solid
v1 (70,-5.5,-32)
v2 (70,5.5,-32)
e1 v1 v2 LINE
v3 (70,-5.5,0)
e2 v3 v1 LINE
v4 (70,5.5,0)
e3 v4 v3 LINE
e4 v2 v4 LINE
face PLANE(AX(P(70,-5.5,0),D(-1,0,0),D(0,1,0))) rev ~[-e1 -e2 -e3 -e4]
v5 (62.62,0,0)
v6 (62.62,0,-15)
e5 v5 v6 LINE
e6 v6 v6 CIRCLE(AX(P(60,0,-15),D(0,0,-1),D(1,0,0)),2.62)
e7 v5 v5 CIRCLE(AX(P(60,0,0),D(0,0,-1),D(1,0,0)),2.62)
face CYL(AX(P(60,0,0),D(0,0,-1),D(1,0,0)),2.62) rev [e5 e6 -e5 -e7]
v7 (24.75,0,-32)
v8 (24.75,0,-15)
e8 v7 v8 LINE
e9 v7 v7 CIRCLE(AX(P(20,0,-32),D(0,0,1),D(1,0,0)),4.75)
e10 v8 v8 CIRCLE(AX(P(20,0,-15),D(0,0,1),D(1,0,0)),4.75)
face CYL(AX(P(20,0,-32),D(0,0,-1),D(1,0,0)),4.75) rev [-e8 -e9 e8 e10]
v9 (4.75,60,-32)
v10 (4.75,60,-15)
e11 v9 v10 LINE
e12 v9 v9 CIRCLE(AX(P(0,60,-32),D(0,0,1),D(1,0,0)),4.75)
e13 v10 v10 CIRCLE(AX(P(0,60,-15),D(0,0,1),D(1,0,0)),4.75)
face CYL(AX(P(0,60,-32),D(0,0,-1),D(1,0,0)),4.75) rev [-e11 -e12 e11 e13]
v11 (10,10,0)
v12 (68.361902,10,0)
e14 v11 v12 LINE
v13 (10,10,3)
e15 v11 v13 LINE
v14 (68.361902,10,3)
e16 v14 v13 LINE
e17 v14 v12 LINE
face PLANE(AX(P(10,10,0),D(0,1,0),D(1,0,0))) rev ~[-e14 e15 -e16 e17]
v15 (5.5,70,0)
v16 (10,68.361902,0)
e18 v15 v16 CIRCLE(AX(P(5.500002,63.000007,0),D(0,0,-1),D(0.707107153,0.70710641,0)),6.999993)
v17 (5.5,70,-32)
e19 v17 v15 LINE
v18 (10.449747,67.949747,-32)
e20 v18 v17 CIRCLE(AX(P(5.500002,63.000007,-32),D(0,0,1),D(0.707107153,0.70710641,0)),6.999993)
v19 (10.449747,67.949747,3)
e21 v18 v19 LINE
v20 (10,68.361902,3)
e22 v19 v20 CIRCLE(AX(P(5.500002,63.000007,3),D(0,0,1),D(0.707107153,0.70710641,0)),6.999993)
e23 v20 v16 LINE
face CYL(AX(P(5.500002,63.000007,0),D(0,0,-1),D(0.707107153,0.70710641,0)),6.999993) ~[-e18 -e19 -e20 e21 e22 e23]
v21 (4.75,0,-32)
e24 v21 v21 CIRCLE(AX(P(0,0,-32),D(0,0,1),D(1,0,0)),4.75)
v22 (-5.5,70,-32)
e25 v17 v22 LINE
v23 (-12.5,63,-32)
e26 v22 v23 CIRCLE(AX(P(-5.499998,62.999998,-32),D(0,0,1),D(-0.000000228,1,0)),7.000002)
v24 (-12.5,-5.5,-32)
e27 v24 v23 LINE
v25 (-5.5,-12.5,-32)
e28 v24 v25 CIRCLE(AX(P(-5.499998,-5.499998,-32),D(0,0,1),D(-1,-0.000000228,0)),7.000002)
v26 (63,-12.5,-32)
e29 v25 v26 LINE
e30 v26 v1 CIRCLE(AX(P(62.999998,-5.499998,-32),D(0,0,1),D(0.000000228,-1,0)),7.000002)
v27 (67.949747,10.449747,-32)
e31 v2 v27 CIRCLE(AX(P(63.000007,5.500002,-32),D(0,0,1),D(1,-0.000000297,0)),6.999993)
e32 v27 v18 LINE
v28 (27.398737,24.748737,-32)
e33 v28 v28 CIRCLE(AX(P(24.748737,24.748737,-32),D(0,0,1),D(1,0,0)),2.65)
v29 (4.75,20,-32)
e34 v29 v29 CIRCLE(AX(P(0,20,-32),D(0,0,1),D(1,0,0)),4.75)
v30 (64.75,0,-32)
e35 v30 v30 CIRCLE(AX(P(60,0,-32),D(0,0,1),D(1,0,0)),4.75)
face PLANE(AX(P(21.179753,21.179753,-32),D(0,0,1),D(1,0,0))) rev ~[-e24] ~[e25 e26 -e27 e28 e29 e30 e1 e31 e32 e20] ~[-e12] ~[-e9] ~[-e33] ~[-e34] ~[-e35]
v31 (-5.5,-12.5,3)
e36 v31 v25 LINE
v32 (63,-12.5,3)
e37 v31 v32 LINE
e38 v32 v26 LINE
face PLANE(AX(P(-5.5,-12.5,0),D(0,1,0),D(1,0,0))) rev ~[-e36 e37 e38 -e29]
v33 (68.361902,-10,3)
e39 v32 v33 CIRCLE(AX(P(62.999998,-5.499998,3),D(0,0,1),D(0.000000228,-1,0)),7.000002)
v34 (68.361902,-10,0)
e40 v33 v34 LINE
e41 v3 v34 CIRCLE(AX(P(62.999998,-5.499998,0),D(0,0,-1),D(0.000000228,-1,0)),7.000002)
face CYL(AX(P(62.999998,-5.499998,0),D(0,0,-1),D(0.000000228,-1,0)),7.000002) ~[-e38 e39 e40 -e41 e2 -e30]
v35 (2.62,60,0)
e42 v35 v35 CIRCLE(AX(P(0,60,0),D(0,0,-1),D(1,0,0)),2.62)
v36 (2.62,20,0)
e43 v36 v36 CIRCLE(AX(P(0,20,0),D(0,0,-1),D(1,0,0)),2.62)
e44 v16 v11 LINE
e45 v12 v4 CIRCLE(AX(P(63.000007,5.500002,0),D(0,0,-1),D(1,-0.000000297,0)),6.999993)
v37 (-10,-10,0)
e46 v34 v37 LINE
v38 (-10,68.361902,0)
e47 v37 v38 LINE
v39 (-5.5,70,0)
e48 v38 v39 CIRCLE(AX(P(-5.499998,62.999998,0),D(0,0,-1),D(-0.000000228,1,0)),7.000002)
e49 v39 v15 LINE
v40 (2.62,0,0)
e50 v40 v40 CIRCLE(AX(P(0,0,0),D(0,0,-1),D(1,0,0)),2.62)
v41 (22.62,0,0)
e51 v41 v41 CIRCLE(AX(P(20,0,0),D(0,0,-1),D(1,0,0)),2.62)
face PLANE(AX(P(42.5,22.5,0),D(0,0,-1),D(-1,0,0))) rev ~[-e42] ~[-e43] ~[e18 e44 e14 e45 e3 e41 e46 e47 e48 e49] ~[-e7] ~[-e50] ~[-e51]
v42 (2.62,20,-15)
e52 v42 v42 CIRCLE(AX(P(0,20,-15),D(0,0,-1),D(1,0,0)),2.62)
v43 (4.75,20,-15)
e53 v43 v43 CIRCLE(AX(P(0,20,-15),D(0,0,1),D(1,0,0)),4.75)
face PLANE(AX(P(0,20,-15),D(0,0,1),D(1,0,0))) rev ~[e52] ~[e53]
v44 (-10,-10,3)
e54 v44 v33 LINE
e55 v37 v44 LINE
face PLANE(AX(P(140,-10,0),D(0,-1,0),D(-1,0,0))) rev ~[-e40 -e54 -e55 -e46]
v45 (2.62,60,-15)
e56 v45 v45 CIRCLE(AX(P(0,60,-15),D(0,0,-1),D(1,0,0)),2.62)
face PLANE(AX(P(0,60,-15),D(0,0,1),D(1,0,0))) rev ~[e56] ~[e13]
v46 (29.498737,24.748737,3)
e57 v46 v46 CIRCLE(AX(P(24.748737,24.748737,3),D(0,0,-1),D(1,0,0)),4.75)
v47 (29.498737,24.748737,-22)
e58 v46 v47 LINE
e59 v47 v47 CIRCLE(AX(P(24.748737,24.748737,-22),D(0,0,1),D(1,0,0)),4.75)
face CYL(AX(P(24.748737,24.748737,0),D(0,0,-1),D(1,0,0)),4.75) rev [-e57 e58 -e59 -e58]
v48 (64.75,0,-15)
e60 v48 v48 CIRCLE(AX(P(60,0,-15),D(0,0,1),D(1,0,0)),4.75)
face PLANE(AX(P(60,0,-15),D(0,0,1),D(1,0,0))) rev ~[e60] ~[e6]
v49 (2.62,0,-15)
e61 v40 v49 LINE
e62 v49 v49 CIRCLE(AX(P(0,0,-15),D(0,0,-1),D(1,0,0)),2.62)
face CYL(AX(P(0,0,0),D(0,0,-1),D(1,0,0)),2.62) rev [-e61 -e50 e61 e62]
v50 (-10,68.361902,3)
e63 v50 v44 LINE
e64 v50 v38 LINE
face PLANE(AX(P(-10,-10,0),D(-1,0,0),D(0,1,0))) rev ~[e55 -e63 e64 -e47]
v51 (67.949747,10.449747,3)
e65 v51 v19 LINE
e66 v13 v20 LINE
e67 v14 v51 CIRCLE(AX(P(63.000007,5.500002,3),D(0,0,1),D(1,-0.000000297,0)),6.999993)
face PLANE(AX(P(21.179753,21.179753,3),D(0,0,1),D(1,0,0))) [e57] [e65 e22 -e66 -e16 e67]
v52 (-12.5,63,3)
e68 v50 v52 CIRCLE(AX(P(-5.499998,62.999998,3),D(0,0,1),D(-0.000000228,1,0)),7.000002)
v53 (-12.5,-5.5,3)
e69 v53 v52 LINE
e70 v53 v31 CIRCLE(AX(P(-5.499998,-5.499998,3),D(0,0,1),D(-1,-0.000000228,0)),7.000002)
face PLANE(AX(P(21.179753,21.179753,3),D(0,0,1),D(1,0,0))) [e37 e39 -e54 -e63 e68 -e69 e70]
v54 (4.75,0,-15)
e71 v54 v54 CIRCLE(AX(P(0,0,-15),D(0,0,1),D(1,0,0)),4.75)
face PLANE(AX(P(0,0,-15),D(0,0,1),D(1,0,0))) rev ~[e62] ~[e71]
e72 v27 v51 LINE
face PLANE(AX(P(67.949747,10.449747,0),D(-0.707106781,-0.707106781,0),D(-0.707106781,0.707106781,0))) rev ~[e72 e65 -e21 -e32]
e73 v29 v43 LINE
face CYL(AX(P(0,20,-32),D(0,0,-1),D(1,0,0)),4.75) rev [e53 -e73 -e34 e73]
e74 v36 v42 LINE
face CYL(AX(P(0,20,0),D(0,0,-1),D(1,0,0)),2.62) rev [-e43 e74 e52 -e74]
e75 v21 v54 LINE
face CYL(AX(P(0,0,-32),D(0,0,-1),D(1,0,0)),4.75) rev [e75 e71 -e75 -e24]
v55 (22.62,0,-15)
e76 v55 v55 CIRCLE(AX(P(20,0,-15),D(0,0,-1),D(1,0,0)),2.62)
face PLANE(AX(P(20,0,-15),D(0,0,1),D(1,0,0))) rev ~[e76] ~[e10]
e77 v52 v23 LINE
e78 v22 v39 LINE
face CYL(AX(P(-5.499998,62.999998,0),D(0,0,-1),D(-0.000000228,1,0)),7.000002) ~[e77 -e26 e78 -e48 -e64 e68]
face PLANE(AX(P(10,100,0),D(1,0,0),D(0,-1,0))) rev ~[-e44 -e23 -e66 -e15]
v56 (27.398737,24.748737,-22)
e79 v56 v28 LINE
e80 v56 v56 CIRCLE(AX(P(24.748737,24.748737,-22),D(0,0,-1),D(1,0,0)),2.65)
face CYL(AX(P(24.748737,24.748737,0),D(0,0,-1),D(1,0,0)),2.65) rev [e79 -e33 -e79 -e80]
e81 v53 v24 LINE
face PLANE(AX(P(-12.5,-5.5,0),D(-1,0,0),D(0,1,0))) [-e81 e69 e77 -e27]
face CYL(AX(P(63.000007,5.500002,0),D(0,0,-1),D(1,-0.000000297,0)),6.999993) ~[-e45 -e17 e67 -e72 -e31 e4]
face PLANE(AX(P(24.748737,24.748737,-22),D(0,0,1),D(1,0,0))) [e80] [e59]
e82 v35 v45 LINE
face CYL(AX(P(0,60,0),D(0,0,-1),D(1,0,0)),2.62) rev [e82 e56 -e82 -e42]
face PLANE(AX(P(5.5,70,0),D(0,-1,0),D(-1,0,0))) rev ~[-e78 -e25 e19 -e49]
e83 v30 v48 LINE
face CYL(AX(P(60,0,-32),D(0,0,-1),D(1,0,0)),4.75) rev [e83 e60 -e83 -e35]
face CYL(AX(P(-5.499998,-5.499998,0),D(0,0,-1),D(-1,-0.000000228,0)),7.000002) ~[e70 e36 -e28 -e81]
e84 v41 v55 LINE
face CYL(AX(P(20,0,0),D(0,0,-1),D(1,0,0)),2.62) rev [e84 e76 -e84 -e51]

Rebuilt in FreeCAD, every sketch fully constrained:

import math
import FreeCAD as App
import Part
import Sketcher

V = App.Vector

doc = App.newDocument("Part")
body = doc.addObject("PartDesign::Body", "Body")

sketch1 = doc.addObject("Sketcher::SketchObject", "Sketch")
body.addObject(sketch1)
sketch1.AttachmentSupport = (doc.XY_Plane, [""])
sketch1.MapMode = "FlatFace"
sketch1.addGeometry(Part.LineSegment(V(70, -5.5, 0), V(70, 5.5, 0)), False)
sketch1.addGeometry(Part.ArcOfCircle(Part.Circle(V(63, 5.5, 0), V(0, 0, 1), 7), math.radians(0), math.radians(45)), False)
sketch1.addGeometry(Part.LineSegment(V(67.9, 10.4, 0), V(10.4, 67.9, 0)), False)
sketch1.addGeometry(Part.ArcOfCircle(Part.Circle(V(5.5, 63, 0), V(0, 0, 1), 7), math.radians(45), math.radians(90)), False)
sketch1.addGeometry(Part.LineSegment(V(5.5, 70, 0), V(-5.5, 70, 0)), False)
sketch1.addGeometry(Part.ArcOfCircle(Part.Circle(V(-5.5, 63, 0), V(0, 0, 1), 7), math.radians(90), math.radians(180)), False)
sketch1.addGeometry(Part.LineSegment(V(-12.5, 63, 0), V(-12.5, -5.5, 0)), False)
sketch1.addGeometry(Part.ArcOfCircle(Part.Circle(V(-5.5, -5.5, 0), V(0, 0, 1), 7), math.radians(-180), math.radians(-90)), False)
sketch1.addGeometry(Part.LineSegment(V(-5.5, -12.5, 0), V(63, -12.5, 0)), False)
sketch1.addGeometry(Part.ArcOfCircle(Part.Circle(V(63, -5.5, 0), V(0, 0, 1), 7), math.radians(-90), math.radians(0)), False)
sketch1.addGeometry(Part.Circle(V(0, 0, 0), V(0, 0, 1), 2.6), False)
sketch1.addGeometry(Part.Circle(V(20, 0, 0), V(0, 0, 1), 2.6), False)
sketch1.addGeometry(Part.Circle(V(0, 20, 0), V(0, 0, 1), 2.6), False)
sketch1.addGeometry(Part.Circle(V(24.7, 24.7, 0), V(0, 0, 1), 2.6), False)
sketch1.addGeometry(Part.Circle(V(60, 0, 0), V(0, 0, 1), 2.6), False)
sketch1.addGeometry(Part.Circle(V(0, 60, 0), V(0, 0, 1), 2.6), False)
sketch1.addConstraint(Sketcher.Constraint("Tangent", 0, 2, 1, 1))
sketch1.addConstraint(Sketcher.Constraint("Tangent", 1, 2, 2, 1))
sketch1.addConstraint(Sketcher.Constraint("Tangent", 2, 2, 3, 1))
sketch1.addConstraint(Sketcher.Constraint("Tangent", 3, 2, 4, 1))
sketch1.addConstraint(Sketcher.Constraint("Tangent", 4, 2, 5, 1))
sketch1.addConstraint(Sketcher.Constraint("Tangent", 5, 2, 6, 1))
sketch1.addConstraint(Sketcher.Constraint("Tangent", 6, 2, 7, 1))
sketch1.addConstraint(Sketcher.Constraint("Tangent", 7, 2, 8, 1))
sketch1.addConstraint(Sketcher.Constraint("Tangent", 8, 2, 9, 1))
sketch1.addConstraint(Sketcher.Constraint("Tangent", 9, 2, 0, 1))
sketch1.addConstraint(Sketcher.Constraint("Vertical", 0))
sketch1.addConstraint(Sketcher.Constraint("Horizontal", 4))
sketch1.addConstraint(Sketcher.Constraint("Vertical", 6))
sketch1.addConstraint(Sketcher.Constraint("Horizontal", 8))
sketch1.addConstraint(Sketcher.Constraint("Coincident", 10, 3, -1, 1))
sketch1.addConstraint(Sketcher.Constraint("Equal", 1, 3))
sketch1.addConstraint(Sketcher.Constraint("Equal", 5, 7))
sketch1.addConstraint(Sketcher.Constraint("Equal", 7, 9))
sketch1.addConstraint(Sketcher.Constraint("Equal", 10, 11))
sketch1.addConstraint(Sketcher.Constraint("Equal", 11, 12))
sketch1.addConstraint(Sketcher.Constraint("Equal", 12, 14))
sketch1.addConstraint(Sketcher.Constraint("Equal", 14, 15))
sketch1.addConstraint(Sketcher.Constraint("Symmetric", 3, 3, 5, 3, -2))
sketch1.addConstraint(Sketcher.Constraint("PointOnObject", 11, 3, -1))
sketch1.addConstraint(Sketcher.Constraint("PointOnObject", 12, 3, -2))
sketch1.addConstraint(Sketcher.Constraint("PointOnObject", 14, 3, -1))
sketch1.addConstraint(Sketcher.Constraint("PointOnObject", 15, 3, -2))
sketch1.addConstraint(Sketcher.Constraint("Equal", 4, 0))
sketch1.addConstraint(Sketcher.Constraint("Equal", 8, 6))
sketch1.addConstraint(Sketcher.Constraint("Radius", 5, 7.000002))
sketch1.addConstraint(Sketcher.Constraint("Diameter", 13, 5.3))
sketch1.addConstraint(Sketcher.Constraint("Diameter", 10, 5.24))
sketch1.addConstraint(Sketcher.Constraint("DistanceX", 4, 2, 4, 1, 11.0))
sketch1.addConstraint(Sketcher.Constraint("DistanceX", 8, 1, 8, 2, 68.5))
sketch1.addConstraint(Sketcher.Constraint("DistanceY", -1, 1, 5, 3, 62.999998))
sketch1.addConstraint(Sketcher.Constraint("DistanceX", -1, 1, 11, 3, 20.0))
sketch1.addConstraint(Sketcher.Constraint("DistanceY", -1, 1, 12, 3, 20.0))
sketch1.addConstraint(Sketcher.Constraint("DistanceX", -1, 1, 14, 3, 60.0))
sketch1.addConstraint(Sketcher.Constraint("DistanceY", -1, 1, 15, 3, 60.0))
sketch1.addConstraint(Sketcher.Constraint("DistanceX", 13, 3, 1, 3, 38.25127))
sketch1.addConstraint(Sketcher.Constraint("DistanceY", 1, 2, 13, 3, 14.29899))
pad1 = doc.addObject("PartDesign::Pad", "Pad")
body.addObject(pad1)
pad1.Profile = sketch1
pad1.Type = "TwoLengths"
pad1.Length = 32
pad1.Length2 = 3
pad1.Reversed = True

sketch2 = doc.addObject("Sketcher::SketchObject", "Sketch001")
body.addObject(sketch2)
sketch2.AttachmentSupport = (doc.XY_Plane, [""])
sketch2.MapMode = "FlatFace"
sketch2.AttachmentOffset = App.Placement(V(0, 0, -32), App.Rotation())
sketch2.addGeometry(Part.Circle(V(0, 60, 0), V(0, 0, 1), 4.8), False)
sketch2.addGeometry(Part.Circle(V(0, 0, 0), V(0, 0, 1), 4.8), False)
sketch2.addGeometry(Part.Circle(V(20, 0, 0), V(0, 0, 1), 4.8), False)
sketch2.addGeometry(Part.Circle(V(60, 0, 0), V(0, 0, 1), 4.8), False)
sketch2.addGeometry(Part.Circle(V(0, 20, 0), V(0, 0, 1), 4.8), False)
sketch2.addConstraint(Sketcher.Constraint("Coincident", 1, 3, -1, 1))
sketch2.addConstraint(Sketcher.Constraint("Equal", 0, 1))
sketch2.addConstraint(Sketcher.Constraint("Equal", 1, 2))
sketch2.addConstraint(Sketcher.Constraint("Equal", 2, 3))
sketch2.addConstraint(Sketcher.Constraint("Equal", 3, 4))
sketch2.addConstraint(Sketcher.Constraint("PointOnObject", 0, 3, -2))
sketch2.addConstraint(Sketcher.Constraint("PointOnObject", 2, 3, -1))
sketch2.addConstraint(Sketcher.Constraint("PointOnObject", 3, 3, -1))
sketch2.addConstraint(Sketcher.Constraint("PointOnObject", 4, 3, -2))
sketch2.addConstraint(Sketcher.Constraint("Diameter", 0, 9.5))
sketch2.addConstraint(Sketcher.Constraint("DistanceY", -1, 1, 0, 3, 60.0))
sketch2.addConstraint(Sketcher.Constraint("DistanceX", -1, 1, 2, 3, 20.0))
sketch2.addConstraint(Sketcher.Constraint("DistanceX", -1, 1, 3, 3, 60.0))
sketch2.addConstraint(Sketcher.Constraint("DistanceY", -1, 1, 4, 3, 20.0))
pocket1 = doc.addObject("PartDesign::Pocket", "Pocket")
body.addObject(pocket1)
pocket1.Profile = sketch2
pocket1.Length = 17
pocket1.Reversed = True

sketch3 = doc.addObject("Sketcher::SketchObject", "Sketch002")
body.addObject(sketch3)
sketch3.AttachmentSupport = (doc.XY_Plane, [""])
sketch3.MapMode = "FlatFace"
sketch3.addGeometry(Part.LineSegment(V(10, 10, 0), V(10, 100, 0)), False)
sketch3.addGeometry(Part.LineSegment(V(10, 100, 0), V(-10, 100, 0)), False)
sketch3.addGeometry(Part.LineSegment(V(-10, 100, 0), V(-10, -10, 0)), False)
sketch3.addGeometry(Part.LineSegment(V(-10, -10, 0), V(140, -10, 0)), False)
sketch3.addGeometry(Part.LineSegment(V(140, -10, 0), V(140, 10, 0)), False)
sketch3.addGeometry(Part.LineSegment(V(140, 10, 0), V(10, 10, 0)), False)
sketch3.addConstraint(Sketcher.Constraint("Coincident", 0, 2, 1, 1))
sketch3.addConstraint(Sketcher.Constraint("Coincident", 1, 2, 2, 1))
sketch3.addConstraint(Sketcher.Constraint("Coincident", 2, 2, 3, 1))
sketch3.addConstraint(Sketcher.Constraint("Coincident", 3, 2, 4, 1))
sketch3.addConstraint(Sketcher.Constraint("Coincident", 4, 2, 5, 1))
sketch3.addConstraint(Sketcher.Constraint("Coincident", 5, 2, 0, 1))
sketch3.addConstraint(Sketcher.Constraint("Vertical", 0))
sketch3.addConstraint(Sketcher.Constraint("Horizontal", 1))
sketch3.addConstraint(Sketcher.Constraint("Vertical", 2))
sketch3.addConstraint(Sketcher.Constraint("Horizontal", 3))
sketch3.addConstraint(Sketcher.Constraint("Vertical", 4))
sketch3.addConstraint(Sketcher.Constraint("Horizontal", 5))
sketch3.addConstraint(Sketcher.Constraint("Symmetric", 2, 2, 5, 2, -1, 1))
sketch3.addConstraint(Sketcher.Constraint("Equal", 1, 4))
sketch3.addConstraint(Sketcher.Constraint("DistanceX", 1, 2, 1, 1, 20.0))
sketch3.addConstraint(Sketcher.Constraint("DistanceX", 3, 1, 3, 2, 150.0))
sketch3.addConstraint(Sketcher.Constraint("DistanceY", 0, 1, 0, 2, 90.0))
pocket2 = doc.addObject("PartDesign::Pocket", "Pocket001")
body.addObject(pocket2)
pocket2.Profile = sketch3
pocket2.Type = "ThroughAll"
pocket2.Reversed = True

sketch4 = doc.addObject("Sketcher::SketchObject", "Sketch003")
body.addObject(sketch4)
sketch4.AttachmentSupport = (doc.XY_Plane, [""])
sketch4.MapMode = "FlatFace"
sketch4.addGeometry(Part.Circle(V(24.7, 24.7, 0), V(0, 0, 1), 4.8), False)
sketch4.addConstraint(Sketcher.Constraint("Diameter", 0, 9.5))
sketch4.addConstraint(Sketcher.Constraint("DistanceX", -1, 1, 0, 3, 24.748737))
sketch4.addConstraint(Sketcher.Constraint("DistanceY", -1, 1, 0, 3, 24.748737))
pocket3 = doc.addObject("PartDesign::Pocket", "Pocket002")
body.addObject(pocket3)
pocket3.Profile = sketch4
pocket3.Type = "TwoLengths"
pocket3.Length = 22
pocket3.Length2 = 100

doc.recompute()
